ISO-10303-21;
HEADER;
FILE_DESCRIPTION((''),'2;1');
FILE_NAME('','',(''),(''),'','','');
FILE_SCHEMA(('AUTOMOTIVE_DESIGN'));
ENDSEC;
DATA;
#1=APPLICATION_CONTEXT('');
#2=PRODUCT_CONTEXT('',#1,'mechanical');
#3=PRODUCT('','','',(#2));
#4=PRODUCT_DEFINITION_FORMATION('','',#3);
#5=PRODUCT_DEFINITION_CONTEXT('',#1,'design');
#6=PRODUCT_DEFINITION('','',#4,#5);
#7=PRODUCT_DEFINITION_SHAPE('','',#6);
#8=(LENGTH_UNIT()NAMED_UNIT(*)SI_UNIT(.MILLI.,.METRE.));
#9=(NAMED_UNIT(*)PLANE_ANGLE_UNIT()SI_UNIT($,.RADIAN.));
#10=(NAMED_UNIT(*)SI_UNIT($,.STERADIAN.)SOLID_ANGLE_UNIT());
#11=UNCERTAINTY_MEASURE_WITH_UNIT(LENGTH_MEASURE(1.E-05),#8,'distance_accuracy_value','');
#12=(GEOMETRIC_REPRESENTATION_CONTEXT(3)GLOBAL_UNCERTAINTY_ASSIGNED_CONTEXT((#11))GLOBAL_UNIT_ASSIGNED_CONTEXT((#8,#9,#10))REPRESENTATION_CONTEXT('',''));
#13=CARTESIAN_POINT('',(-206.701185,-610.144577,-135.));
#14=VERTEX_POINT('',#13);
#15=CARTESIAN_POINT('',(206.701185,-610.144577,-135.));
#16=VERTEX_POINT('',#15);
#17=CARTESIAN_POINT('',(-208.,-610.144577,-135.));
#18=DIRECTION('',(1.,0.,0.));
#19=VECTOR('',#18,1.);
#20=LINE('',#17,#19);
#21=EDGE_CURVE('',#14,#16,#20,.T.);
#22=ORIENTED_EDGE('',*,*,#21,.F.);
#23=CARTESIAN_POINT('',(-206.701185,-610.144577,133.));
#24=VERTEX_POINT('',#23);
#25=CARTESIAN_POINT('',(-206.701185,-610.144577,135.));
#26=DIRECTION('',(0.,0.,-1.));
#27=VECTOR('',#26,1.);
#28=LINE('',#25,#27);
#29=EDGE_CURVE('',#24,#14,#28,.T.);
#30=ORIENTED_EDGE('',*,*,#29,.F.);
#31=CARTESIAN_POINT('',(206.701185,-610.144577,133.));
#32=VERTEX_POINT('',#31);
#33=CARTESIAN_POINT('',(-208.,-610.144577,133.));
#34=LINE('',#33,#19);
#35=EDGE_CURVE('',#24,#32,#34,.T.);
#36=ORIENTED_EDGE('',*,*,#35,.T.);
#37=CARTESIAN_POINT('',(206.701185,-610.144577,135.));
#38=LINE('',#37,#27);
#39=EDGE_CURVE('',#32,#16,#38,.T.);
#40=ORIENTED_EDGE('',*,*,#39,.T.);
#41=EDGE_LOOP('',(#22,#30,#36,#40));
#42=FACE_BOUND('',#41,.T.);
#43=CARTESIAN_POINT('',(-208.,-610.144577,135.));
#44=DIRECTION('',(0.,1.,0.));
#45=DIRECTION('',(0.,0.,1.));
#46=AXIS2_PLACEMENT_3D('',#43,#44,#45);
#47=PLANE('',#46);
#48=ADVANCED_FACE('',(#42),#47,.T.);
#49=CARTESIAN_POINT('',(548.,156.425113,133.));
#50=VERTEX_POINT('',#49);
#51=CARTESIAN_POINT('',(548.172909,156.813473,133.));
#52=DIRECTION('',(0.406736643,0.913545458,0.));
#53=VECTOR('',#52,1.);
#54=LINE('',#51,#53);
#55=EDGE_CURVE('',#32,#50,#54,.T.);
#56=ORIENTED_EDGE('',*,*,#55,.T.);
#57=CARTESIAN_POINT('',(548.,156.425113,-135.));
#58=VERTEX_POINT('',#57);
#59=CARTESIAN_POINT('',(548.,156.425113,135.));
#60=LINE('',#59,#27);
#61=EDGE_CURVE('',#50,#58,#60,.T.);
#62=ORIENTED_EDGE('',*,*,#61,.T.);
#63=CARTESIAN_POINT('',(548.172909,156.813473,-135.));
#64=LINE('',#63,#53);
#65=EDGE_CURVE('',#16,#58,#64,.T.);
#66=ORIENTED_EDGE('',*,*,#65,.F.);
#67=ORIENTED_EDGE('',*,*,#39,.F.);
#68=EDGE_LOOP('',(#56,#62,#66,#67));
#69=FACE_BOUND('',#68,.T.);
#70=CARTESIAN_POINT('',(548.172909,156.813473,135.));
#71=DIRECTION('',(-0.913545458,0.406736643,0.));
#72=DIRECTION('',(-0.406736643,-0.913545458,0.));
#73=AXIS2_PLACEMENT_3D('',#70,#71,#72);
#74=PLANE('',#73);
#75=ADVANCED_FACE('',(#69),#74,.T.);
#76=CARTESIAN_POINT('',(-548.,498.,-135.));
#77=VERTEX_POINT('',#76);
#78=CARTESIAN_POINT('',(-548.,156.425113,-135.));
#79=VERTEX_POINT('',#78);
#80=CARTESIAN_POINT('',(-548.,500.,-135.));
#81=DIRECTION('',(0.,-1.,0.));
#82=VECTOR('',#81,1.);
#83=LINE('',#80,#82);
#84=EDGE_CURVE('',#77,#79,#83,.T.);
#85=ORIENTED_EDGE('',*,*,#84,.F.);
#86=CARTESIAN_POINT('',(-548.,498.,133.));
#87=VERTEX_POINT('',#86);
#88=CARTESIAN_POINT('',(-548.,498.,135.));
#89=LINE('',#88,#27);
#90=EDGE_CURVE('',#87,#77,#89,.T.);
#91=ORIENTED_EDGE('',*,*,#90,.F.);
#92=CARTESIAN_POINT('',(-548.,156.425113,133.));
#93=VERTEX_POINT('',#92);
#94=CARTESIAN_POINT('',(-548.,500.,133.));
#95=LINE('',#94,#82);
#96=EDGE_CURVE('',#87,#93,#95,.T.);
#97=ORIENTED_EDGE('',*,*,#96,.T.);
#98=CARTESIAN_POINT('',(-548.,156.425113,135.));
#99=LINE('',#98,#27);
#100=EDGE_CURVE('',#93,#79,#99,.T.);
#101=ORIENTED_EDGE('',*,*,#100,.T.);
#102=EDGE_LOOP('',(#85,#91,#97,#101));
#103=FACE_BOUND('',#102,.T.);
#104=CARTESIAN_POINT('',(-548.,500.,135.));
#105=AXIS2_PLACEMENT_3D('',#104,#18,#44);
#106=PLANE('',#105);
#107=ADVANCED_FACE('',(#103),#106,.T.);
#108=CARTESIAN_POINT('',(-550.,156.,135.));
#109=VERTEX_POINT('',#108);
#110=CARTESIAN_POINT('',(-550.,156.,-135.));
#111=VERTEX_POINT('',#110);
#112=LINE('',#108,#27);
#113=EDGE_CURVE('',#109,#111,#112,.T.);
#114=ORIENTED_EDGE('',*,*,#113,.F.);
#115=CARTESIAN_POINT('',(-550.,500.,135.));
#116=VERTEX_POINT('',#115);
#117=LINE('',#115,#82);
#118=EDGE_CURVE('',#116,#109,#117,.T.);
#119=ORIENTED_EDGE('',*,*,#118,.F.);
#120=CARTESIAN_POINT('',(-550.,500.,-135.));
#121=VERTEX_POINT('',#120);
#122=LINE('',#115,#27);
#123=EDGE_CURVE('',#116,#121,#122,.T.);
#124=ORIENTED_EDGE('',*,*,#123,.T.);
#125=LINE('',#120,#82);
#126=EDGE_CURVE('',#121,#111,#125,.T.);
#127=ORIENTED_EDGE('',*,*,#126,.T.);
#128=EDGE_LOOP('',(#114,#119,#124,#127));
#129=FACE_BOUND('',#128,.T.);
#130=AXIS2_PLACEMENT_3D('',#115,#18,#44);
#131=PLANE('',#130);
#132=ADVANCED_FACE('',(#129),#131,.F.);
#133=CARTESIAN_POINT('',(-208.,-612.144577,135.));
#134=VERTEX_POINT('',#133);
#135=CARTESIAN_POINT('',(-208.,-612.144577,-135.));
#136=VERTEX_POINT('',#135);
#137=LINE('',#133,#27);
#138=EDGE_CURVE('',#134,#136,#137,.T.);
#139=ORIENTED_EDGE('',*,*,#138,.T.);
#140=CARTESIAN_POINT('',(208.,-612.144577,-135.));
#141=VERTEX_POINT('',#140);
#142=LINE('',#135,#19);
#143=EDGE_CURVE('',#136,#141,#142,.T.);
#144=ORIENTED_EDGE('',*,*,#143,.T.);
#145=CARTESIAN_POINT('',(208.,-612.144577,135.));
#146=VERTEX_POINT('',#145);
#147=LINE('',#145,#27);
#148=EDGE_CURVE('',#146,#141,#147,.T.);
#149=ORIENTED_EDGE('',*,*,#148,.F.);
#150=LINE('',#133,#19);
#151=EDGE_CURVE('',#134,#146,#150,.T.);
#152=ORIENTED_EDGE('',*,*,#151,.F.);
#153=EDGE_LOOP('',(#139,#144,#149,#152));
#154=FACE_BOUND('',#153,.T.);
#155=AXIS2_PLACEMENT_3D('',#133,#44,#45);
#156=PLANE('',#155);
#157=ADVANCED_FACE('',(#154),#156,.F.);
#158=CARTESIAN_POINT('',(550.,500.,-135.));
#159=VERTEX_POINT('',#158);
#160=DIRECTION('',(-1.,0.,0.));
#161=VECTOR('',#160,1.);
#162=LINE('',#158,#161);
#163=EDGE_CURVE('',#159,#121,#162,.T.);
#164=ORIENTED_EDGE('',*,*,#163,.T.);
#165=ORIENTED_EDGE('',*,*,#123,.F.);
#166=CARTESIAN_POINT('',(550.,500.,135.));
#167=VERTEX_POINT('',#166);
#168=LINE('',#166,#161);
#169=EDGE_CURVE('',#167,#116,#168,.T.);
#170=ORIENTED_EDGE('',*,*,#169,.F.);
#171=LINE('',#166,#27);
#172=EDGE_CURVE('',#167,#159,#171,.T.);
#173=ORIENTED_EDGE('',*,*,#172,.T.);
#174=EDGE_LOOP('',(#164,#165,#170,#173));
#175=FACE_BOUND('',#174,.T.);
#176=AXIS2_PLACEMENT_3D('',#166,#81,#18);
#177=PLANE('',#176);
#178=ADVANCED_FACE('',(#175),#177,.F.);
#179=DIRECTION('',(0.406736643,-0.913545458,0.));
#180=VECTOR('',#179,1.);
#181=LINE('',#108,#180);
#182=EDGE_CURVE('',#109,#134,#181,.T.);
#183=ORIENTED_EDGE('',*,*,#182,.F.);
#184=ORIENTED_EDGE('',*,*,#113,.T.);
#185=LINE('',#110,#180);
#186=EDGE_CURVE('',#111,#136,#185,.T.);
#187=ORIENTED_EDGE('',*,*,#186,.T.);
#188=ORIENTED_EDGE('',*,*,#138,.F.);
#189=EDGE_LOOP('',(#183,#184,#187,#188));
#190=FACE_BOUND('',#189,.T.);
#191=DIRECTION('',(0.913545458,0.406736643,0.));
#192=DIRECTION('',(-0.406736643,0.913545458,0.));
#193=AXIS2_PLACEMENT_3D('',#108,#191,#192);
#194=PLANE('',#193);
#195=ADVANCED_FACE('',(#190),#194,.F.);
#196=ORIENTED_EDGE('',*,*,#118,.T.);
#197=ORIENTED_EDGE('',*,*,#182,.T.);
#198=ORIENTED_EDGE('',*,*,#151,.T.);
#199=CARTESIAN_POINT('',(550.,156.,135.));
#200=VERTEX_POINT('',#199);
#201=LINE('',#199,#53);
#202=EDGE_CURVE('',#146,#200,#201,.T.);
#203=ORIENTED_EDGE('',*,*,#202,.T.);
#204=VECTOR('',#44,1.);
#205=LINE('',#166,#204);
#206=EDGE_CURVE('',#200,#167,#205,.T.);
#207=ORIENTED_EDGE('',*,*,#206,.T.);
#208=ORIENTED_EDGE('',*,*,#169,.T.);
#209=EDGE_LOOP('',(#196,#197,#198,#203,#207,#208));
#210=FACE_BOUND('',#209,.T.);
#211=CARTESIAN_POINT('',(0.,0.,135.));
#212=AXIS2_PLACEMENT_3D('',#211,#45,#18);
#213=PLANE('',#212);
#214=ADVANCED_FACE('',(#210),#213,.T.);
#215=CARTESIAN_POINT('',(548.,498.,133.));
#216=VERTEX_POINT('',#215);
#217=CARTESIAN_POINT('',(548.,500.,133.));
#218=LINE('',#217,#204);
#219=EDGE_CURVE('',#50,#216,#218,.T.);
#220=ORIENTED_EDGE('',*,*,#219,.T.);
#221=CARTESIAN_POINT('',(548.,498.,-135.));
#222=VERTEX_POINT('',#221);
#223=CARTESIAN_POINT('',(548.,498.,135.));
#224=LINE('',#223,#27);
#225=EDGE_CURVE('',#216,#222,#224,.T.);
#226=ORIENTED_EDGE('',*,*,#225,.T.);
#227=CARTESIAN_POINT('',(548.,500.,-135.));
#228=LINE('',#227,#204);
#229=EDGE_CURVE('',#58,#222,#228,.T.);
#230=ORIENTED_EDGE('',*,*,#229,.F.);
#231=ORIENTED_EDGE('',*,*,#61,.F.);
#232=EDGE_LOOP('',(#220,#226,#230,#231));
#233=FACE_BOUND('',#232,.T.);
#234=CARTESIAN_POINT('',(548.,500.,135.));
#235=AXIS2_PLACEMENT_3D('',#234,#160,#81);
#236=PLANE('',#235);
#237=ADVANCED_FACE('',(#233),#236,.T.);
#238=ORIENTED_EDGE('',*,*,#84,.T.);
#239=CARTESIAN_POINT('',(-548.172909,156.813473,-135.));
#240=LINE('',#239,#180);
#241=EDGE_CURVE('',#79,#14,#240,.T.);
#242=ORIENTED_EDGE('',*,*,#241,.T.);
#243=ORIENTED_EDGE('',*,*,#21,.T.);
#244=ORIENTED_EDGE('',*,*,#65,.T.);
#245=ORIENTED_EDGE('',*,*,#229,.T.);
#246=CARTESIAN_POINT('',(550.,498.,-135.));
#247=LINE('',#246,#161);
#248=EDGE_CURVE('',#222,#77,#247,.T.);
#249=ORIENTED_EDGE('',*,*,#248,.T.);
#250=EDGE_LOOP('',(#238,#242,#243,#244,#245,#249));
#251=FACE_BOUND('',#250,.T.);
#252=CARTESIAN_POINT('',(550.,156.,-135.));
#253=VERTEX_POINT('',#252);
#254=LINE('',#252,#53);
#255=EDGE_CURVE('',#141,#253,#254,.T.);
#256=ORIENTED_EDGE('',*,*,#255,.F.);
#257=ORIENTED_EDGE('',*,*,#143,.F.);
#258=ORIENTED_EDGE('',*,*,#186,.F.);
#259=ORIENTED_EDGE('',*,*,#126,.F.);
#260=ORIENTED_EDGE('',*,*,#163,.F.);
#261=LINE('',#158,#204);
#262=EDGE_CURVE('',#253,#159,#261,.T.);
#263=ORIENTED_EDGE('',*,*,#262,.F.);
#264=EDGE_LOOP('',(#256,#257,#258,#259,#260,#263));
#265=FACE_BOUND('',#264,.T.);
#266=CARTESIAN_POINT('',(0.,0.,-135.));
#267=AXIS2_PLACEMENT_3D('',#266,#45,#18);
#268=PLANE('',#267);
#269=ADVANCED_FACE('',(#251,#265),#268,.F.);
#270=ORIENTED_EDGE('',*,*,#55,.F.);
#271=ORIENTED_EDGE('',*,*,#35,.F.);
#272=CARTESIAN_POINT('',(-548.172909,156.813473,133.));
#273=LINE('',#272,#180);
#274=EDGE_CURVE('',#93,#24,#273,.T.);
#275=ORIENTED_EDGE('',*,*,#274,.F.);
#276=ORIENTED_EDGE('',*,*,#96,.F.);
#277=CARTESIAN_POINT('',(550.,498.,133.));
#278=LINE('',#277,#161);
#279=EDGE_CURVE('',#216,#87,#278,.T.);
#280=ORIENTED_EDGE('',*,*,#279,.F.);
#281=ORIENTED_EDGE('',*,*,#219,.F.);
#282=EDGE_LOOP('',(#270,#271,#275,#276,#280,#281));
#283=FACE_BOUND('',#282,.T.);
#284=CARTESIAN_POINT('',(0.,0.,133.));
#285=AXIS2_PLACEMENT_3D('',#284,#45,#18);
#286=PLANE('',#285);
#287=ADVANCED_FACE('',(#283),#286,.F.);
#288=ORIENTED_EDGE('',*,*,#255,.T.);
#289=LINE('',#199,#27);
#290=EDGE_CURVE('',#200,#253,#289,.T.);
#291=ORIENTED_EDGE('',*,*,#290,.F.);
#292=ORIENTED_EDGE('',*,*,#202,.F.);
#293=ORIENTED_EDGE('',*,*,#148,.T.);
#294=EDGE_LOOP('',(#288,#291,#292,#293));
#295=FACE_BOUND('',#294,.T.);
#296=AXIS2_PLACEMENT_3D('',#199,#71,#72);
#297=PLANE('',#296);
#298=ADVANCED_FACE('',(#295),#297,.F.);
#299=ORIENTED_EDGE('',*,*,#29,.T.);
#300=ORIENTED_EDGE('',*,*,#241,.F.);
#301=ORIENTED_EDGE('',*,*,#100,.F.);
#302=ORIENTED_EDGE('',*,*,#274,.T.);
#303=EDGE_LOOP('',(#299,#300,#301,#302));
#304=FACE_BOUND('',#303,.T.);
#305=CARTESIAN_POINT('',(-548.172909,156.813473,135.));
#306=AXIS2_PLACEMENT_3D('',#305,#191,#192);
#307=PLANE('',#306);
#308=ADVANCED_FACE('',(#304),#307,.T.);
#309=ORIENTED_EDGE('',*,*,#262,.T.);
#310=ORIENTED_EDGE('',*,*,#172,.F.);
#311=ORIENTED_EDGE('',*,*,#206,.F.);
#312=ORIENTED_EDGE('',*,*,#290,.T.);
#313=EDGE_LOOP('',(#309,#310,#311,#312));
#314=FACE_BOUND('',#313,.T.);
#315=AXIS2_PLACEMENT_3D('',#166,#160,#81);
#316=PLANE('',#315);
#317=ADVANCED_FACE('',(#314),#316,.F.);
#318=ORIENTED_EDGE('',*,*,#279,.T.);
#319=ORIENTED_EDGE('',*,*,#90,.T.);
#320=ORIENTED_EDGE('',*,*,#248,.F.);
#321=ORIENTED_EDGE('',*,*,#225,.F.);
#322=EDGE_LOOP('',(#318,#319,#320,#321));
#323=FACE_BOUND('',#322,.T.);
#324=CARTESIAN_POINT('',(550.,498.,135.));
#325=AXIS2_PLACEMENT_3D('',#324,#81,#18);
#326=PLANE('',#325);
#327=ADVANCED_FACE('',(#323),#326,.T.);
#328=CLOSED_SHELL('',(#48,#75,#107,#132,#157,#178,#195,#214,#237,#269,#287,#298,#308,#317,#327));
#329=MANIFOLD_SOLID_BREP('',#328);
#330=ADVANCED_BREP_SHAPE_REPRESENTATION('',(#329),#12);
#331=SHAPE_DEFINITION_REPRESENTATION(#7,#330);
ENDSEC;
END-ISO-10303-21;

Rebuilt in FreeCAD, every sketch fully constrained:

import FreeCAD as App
import Part
import Sketcher
from FreeCAD import Vector
Q = App.Units.Quantity


def faces_at(feature, points):
    """Names of the faces that lie closest to the given points."""
    faces = feature.Shape.Faces
    near = lambda p: min(range(len(faces)), key=lambda i: faces[i].distToShape(Part.Vertex(*p))[0])
    return sorted({f"Face{near(p) + 1}" for p in points})


def add_polygon(sketch, points):
    """Adds a closed chain of lines whose ends are joined by coincident constraints."""
    first, n = sketch.GeometryCount, len(points)
    for a, b in zip(points, points[1:] + points[:1]):
        sketch.addGeometry(Part.LineSegment(App.Vector(*a, 0), App.Vector(*b, 0)), False)
    for i in range(n):
        sketch.addConstraint(Sketcher.Constraint("Coincident", first + i, 2, first + (i + 1) % n, 1))

doc = App.newDocument("Part")
body = doc.addObject("PartDesign::Body", "Body")

# Sketch on XY plane
sketch1 = body.newObject("Sketcher::SketchObject", "Sketch")
sketch1.AttachmentSupport = (doc.getObject("XY_Plane"), [""])
sketch1.MapMode = "FlatFace"
add_polygon(sketch1, [(550, 500), (-550, 500), (-550, 156), (-208, -612.144577), (208, -612.144577), (550, 156)])  # lines 0-5
sketch1.addConstraint(Sketcher.Constraint("Horizontal", 0))
sketch1.addConstraint(Sketcher.Constraint("Vertical", 1))
sketch1.addConstraint(Sketcher.Constraint("Horizontal", 3))
sketch1.addConstraint(Sketcher.Constraint("Vertical", 5))
sketch1.addConstraint(Sketcher.Constraint("Symmetric", 1, 2, 4, 2, -2))
sketch1.addConstraint(Sketcher.Constraint("Equal", 2, 4))
sketch1.addConstraint(Sketcher.Constraint("DistanceX", 0, 2, 0, 1, Q("1100 mm")))
sketch1.addConstraint(Sketcher.Constraint("DistanceX", 3, 1, 3, 2, Q("416 mm")))
sketch1.addConstraint(Sketcher.Constraint("DistanceY", 1, 2, 1, 1, Q("344 mm")))
sketch1.addConstraint(Sketcher.Constraint("Angle", 2, Q("-66 deg")))
sketch1.addConstraint(Sketcher.Constraint("DistanceY", -1, 1, 0, 2, Q("500 mm")))
pad1 = body.newObject("PartDesign::Pad", "Pad")
pad1.Profile = sketch1
pad1.Length = 270
pad1.Midplane = True
doc.recompute()

thickness = body.newObject("PartDesign::Thickness", "Thickness")
thickness.Base = (pad1, faces_at(pad1, [(0, -56.072, -135)]))
thickness.Value = 2
thickness.Reversed = True
thickness.Join = "Intersection"

doc.recompute()
